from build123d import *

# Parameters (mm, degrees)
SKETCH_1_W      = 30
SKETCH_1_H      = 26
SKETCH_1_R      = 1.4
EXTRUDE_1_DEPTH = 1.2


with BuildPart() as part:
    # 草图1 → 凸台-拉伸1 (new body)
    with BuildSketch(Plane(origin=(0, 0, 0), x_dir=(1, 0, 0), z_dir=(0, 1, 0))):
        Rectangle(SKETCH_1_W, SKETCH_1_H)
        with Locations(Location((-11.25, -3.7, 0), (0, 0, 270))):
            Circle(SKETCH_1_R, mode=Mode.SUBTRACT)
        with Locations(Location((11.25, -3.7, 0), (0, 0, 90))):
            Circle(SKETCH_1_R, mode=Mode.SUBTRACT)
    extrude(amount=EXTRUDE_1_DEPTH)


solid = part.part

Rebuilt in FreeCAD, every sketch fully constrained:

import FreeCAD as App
import Part
import Sketcher
from FreeCAD import Vector

doc = App.newDocument("Part")
params = doc.addObject("Spreadsheet::Sheet", "Params")
for row, (alias, value) in enumerate([
    ("sketch1_diameter", "2.8 mm"),
    ("sketch1_width", "30 mm"),
    ("sketch1_height", "26 mm"),
    ("pad1_length", "1.2 mm"),
], start=1):
    params.set(f"A{row}", alias)
    params.set(f"B{row}", "=" + value)
    params.setAlias(f"B{row}", alias)

body = doc.addObject("PartDesign::Body", "Body")

# Sketch on XZ plane
sketch1 = body.newObject("Sketcher::SketchObject", "Sketch")
sketch1.AttachmentSupport = (doc.getObject("XZ_Plane"), [""])
sketch1.MapMode = "FlatFace"
sketch1.addGeometry([
    Part.LineSegment(Vector(-15, -13, 0), Vector(-15, 13, 0)),  # 0
    Part.LineSegment(Vector(-15, 13, 0), Vector(15, 13, 0)),  # 1
    Part.LineSegment(Vector(15, 13, 0), Vector(15, -13, 0)),  # 2
    Part.LineSegment(Vector(15, -13, 0), Vector(-15, -13, 0)),  # 3
    Part.Circle(Vector(-11.2, 3.7, 0), Vector(0, 0, 1), 1.4),  # 4
    Part.Circle(Vector(11.2, 3.7, 0), Vector(0, 0, 1), 1.4),  # 5
], False)
sketch1.addConstraint([
    Sketcher.Constraint("Coincident", 0, 2, 1, 1),
    Sketcher.Constraint("Coincident", 1, 2, 2, 1),
    Sketcher.Constraint("Coincident", 2, 2, 3, 1),
    Sketcher.Constraint("Coincident", 3, 2, 0, 1),
    Sketcher.Constraint("Vertical", 0),
    Sketcher.Constraint("Horizontal", 1),
    Sketcher.Constraint("Vertical", 2),
    Sketcher.Constraint("Horizontal", 3),
    Sketcher.Constraint("Equal", 4, 5),
    Sketcher.Constraint("Symmetric", 0, 2, 2, 2, -1, 1),
    Sketcher.Constraint("Symmetric", 4, 3, 5, 3, -2),
    Sketcher.Constraint("Diameter", 4, 2.8),
    Sketcher.Constraint("DistanceX", 1, 1, 1, 2, 30.0),
    Sketcher.Constraint("DistanceY", 0, 1, 0, 2, 26.0),
    Sketcher.Constraint("DistanceY", -1, 1, 4, 3, 3.7),
    Sketcher.Constraint("DistanceX", 4, 3, 5, 3, 22.5),
])
sketch1.setExpression("Constraints[11]", "Params.sketch1_diameter")
sketch1.setExpression("Constraints[12]", "Params.sketch1_width")
sketch1.setExpression("Constraints[13]", "Params.sketch1_height")
pad1 = body.newObject("PartDesign::Pad", "Pad")
pad1.Profile = sketch1
pad1.setExpression("Length", "Params.pad1_length")
pad1.Reversed = True

doc.recompute()
